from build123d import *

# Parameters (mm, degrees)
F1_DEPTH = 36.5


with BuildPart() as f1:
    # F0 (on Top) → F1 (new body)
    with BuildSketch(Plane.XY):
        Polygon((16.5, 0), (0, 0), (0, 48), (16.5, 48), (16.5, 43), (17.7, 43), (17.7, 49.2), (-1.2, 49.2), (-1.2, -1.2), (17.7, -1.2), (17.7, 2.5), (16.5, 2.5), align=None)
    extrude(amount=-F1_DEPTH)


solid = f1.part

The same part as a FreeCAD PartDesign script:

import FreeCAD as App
import Part
import Sketcher
from FreeCAD import Vector


def add_polygon(sketch, points):
    """Adds a closed chain of lines whose ends are joined by coincident constraints."""
    first, n = sketch.GeometryCount, len(points)
    for a, b in zip(points, points[1:] + points[:1]):
        sketch.addGeometry(Part.LineSegment(App.Vector(*a, 0), App.Vector(*b, 0)), False)
    for i in range(n):
        sketch.addConstraint(Sketcher.Constraint("Coincident", first + i, 2, first + (i + 1) % n, 1))

doc = App.newDocument("Part")
body = doc.addObject("PartDesign::Body", "Body")

sketch1 = body.newObject("Sketcher::SketchObject", "Sketch")
sketch1.AttachmentSupport = (doc.getObject("XY_Plane"), [""])
sketch1.MapMode = "FlatFace"
add_polygon(sketch1, [(16.5, 0), (0, 0), (0, 48), (16.5, 48), (16.5, 43), (17.7, 43), (17.7, 49.2), (-1.2, 49.2), (-1.2, -1.2), (17.7, -1.2), (17.7, 2.5), (16.5, 2.5)])
sketch1.addConstraint(Sketcher.Constraint("Horizontal", 0))
sketch1.addConstraint(Sketcher.Constraint("Vertical", 1))
sketch1.addConstraint(Sketcher.Constraint("Horizontal", 2))
sketch1.addConstraint(Sketcher.Constraint("Vertical", 3))
sketch1.addConstraint(Sketcher.Constraint("Horizontal", 4))
sketch1.addConstraint(Sketcher.Constraint("Vertical", 5))
sketch1.addConstraint(Sketcher.Constraint("Horizontal", 6))
sketch1.addConstraint(Sketcher.Constraint("Vertical", 7))
sketch1.addConstraint(Sketcher.Constraint("Horizontal", 8))
sketch1.addConstraint(Sketcher.Constraint("Vertical", 9))
sketch1.addConstraint(Sketcher.Constraint("Horizontal", 10))
sketch1.addConstraint(Sketcher.Constraint("Vertical", 11))
sketch1.addConstraint(Sketcher.Constraint("Coincident", 0, 2, -1, 1))
sketch1.addConstraint(Sketcher.Constraint("Vertical", 5, 2, 8, 2))
sketch1.addConstraint(Sketcher.Constraint("Vertical", 3, 2, 10, 2))
sketch1.addConstraint(Sketcher.Constraint("DistanceY", 1, 1, 1, 2, 48.0))
sketch1.addConstraint(Sketcher.Constraint("DistanceY", 3, 2, 3, 1, 5.0))
sketch1.addConstraint(Sketcher.Constraint("DistanceX", 0, 2, 0, 1, 16.5))
sketch1.addConstraint(Sketcher.Constraint("DistanceX", 4, 1, 4, 2, 1.2))
sketch1.addConstraint(Sketcher.Constraint("DistanceX", 6, 2, 6, 1, 18.9))
sketch1.addConstraint(Sketcher.Constraint("DistanceY", 5, 1, 5, 2, 6.2))
sketch1.addConstraint(Sketcher.Constraint("DistanceY", 7, 2, 7, 1, 50.4))
sketch1.addConstraint(Sketcher.Constraint("DistanceY", 9, 1, 9, 2, 3.7))
pad1 = body.newObject("PartDesign::Pad", "Pad")
pad1.Profile = sketch1
pad1.Length = 36.5
pad1.Reversed = True

doc.recompute()
